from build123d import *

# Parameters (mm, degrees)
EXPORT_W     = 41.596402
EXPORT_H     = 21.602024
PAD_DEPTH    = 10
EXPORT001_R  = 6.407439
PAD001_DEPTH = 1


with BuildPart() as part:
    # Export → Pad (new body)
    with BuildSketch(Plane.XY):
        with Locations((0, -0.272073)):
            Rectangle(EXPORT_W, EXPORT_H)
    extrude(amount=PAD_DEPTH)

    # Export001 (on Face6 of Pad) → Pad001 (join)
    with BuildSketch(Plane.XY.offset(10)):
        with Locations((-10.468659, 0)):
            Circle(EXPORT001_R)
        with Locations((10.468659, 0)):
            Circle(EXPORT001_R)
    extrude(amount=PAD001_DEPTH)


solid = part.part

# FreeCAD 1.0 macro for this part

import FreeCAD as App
import Part
import Sketcher

V = App.Vector


def add_polygon(sketch, points):
    """Adds a closed chain of lines whose ends are joined by coincident constraints."""
    first, n = sketch.GeometryCount, len(points)
    for a, b in zip(points, points[1:] + points[:1]):
        sketch.addGeometry(Part.LineSegment(App.Vector(*a, 0), App.Vector(*b, 0)), False)
    for i in range(n):
        sketch.addConstraint(Sketcher.Constraint("Coincident", first + i, 2, first + (i + 1) % n, 1))

doc = App.newDocument("Part")
body = doc.addObject("PartDesign::Body", "Body")

sketch1 = body.newObject("Sketcher::SketchObject", "Sketch")
sketch1.AttachmentSupport = (doc.getObject("XY_Plane"), [""])
sketch1.MapMode = "FlatFace"
add_polygon(sketch1, [(-21, 11), (-21, -11), (21, -11), (21, 11)])
sketch1.addConstraint(Sketcher.Constraint("Vertical", 0))
sketch1.addConstraint(Sketcher.Constraint("Horizontal", 1))
sketch1.addConstraint(Sketcher.Constraint("Vertical", 2))
sketch1.addConstraint(Sketcher.Constraint("Horizontal", 3))
sketch1.addConstraint(Sketcher.Constraint("DistanceX", 1, 1, 1, 2, 41.596402))
sketch1.addConstraint(Sketcher.Constraint("DistanceX", 0, 2, -1, 1, 20.798201))
sketch1.addConstraint(Sketcher.Constraint("DistanceY", 0, 2, 0, 1, 21.602024))
sketch1.addConstraint(Sketcher.Constraint("DistanceY", -1, 1, 2, 2, 10.528939))
pad1 = body.newObject("PartDesign::Pad", "Pad")
pad1.Profile = sketch1
pad1.Length = 10

sketch2 = body.newObject("Sketcher::SketchObject", "Sketch001")
sketch2.AttachmentSupport = (doc.getObject("XY_Plane"), [""])
sketch2.MapMode = "FlatFace"
sketch2.AttachmentOffset = App.Placement(V(0, 0, 10), App.Rotation())
sketch2.addGeometry(Part.Circle(V(-10, 0, 0), V(0, 0, 1), 6), False)
sketch2.addGeometry(Part.Circle(V(10, 0, 0), V(0, 0, 1), 6), False)
sketch2.addConstraint(Sketcher.Constraint("Equal", 0, 1))
sketch2.addConstraint(Sketcher.Constraint("Symmetric", 0, 3, 1, 3, -1, 1))
sketch2.addConstraint(Sketcher.Constraint("PointOnObject", 0, 3, -1))
sketch2.addConstraint(Sketcher.Constraint("Diameter", 0, 12.814878))
sketch2.addConstraint(Sketcher.Constraint("DistanceX", 0, 3, -1, 1, 10.468659))
pad2 = body.newObject("PartDesign::Pad", "Pad001")
pad2.Profile = sketch2
pad2.Length = 1

doc.recompute()
